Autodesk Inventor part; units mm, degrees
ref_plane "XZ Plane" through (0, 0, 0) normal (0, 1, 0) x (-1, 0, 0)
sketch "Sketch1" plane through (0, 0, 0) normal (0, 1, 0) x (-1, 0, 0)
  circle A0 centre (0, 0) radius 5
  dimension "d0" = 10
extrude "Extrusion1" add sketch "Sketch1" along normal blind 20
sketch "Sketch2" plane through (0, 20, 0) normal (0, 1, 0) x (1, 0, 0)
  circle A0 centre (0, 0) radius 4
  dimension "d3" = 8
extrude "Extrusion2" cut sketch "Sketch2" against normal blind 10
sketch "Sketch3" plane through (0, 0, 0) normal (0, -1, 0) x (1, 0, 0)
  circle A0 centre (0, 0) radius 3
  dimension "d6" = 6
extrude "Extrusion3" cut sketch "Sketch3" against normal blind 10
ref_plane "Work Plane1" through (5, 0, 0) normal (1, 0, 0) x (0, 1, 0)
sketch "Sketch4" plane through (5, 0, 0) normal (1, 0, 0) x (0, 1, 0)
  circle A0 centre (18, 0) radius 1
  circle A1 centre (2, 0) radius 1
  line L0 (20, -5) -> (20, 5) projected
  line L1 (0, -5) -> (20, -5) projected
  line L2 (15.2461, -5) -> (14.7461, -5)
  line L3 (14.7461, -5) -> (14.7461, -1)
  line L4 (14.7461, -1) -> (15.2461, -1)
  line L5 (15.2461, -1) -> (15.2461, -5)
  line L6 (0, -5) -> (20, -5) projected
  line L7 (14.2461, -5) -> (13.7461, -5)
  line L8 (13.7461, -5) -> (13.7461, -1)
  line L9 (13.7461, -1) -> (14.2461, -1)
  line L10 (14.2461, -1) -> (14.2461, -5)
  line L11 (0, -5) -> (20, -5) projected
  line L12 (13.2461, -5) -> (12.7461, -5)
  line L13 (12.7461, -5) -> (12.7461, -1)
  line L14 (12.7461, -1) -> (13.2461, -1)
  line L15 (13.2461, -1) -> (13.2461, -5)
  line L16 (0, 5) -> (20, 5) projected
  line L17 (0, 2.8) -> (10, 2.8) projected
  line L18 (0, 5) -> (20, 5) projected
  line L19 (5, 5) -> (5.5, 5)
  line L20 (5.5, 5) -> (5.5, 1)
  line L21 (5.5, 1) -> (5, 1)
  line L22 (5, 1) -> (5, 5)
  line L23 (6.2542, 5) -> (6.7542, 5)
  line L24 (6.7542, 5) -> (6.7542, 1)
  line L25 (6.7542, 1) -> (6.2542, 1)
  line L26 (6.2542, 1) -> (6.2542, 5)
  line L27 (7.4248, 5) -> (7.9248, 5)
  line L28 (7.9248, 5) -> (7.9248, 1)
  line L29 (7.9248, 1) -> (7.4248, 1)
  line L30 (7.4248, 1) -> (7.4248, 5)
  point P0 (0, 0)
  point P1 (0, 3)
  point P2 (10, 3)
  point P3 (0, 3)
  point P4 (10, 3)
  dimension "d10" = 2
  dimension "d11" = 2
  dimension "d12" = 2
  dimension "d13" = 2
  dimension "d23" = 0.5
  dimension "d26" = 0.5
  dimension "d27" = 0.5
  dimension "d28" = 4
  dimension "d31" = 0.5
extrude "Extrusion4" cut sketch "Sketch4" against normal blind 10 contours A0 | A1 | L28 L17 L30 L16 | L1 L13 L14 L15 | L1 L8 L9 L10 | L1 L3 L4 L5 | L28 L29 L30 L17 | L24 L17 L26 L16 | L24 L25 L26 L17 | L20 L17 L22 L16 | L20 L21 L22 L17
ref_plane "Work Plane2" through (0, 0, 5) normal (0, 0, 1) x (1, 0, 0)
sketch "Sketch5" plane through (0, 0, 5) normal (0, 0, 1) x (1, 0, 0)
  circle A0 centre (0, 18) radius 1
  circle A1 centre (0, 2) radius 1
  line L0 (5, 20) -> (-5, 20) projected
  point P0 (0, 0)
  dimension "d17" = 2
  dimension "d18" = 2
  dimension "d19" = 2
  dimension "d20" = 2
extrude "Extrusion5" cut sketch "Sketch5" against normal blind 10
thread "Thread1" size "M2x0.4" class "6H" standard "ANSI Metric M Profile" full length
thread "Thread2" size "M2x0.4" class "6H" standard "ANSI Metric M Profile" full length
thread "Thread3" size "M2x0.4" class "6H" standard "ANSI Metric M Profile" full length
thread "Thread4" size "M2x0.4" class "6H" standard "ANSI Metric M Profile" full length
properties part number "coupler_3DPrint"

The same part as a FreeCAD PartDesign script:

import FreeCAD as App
import Part
import Sketcher
from FreeCAD import Vector

doc = App.newDocument("Part")
body = doc.addObject("PartDesign::Body", "Body")

# Sketch on XZ plane
sketch1 = doc.addObject("Sketcher::SketchObject", "Sketch")
body.addObject(sketch1)
sketch1.AttachmentSupport = (doc.XZ_Plane, [""])
sketch1.MapMode = "FlatFace"
sketch1.addGeometry(Part.Circle(Vector(0, 0, 0), Vector(0, 0, 1), 5), False)
sketch1.addConstraint(Sketcher.Constraint("Coincident", 0, 3, -1, 1))
sketch1.addConstraint(Sketcher.Constraint("Diameter", 0, 10.0))
pad1 = doc.addObject("PartDesign::Pad", "Pad")
body.addObject(pad1)
pad1.Profile = sketch1
pad1.Length = 20
pad1.Reversed = True

# Sketch on XZ plane
sketch2 = doc.addObject("Sketcher::SketchObject", "Sketch001")
body.addObject(sketch2)
sketch2.AttachmentSupport = (doc.XZ_Plane, [""])
sketch2.MapMode = "FlatFace"
sketch2.AttachmentOffset = App.Placement(Vector(0, 0, -20), App.Rotation())
sketch2.addGeometry(Part.Circle(Vector(0, 0, 0), Vector(0, 0, 1), 4), False)
sketch2.addConstraint(Sketcher.Constraint("Coincident", 0, 3, -1, 1))
sketch2.addConstraint(Sketcher.Constraint("Diameter", 0, 8.0))
pocket1 = doc.addObject("PartDesign::Pocket", "Pocket")
body.addObject(pocket1)
pocket1.Profile = sketch2
pocket1.Length = 10
pocket1.Reversed = True

# Sketch on XZ plane
sketch3 = doc.addObject("Sketcher::SketchObject", "Sketch002")
body.addObject(sketch3)
sketch3.AttachmentSupport = (doc.XZ_Plane, [""])
sketch3.MapMode = "FlatFace"
sketch3.addGeometry(Part.Circle(Vector(0, 0, 0), Vector(0, 0, 1), 3), False)
sketch3.addConstraint(Sketcher.Constraint("Coincident", 0, 3, -1, 1))
sketch3.addConstraint(Sketcher.Constraint("Diameter", 0, 6.0))
pocket2 = doc.addObject("PartDesign::Pocket", "Pocket001")
body.addObject(pocket2)
pocket2.Profile = sketch3
pocket2.Length = 10

# Sketch on YZ plane
sketch4 = doc.addObject("Sketcher::SketchObject", "Sketch003")
body.addObject(sketch4)
sketch4.AttachmentSupport = (doc.YZ_Plane, [""])
sketch4.MapMode = "FlatFace"
sketch4.AttachmentOffset = App.Placement(Vector(0, 0, 5), App.Rotation())
sketch4.addGeometry(Part.Circle(Vector(18, 0, 0), Vector(0, 0, 1), 1), False)
sketch4.addGeometry(Part.Circle(Vector(2, 0, 0), Vector(0, 0, 1), 1), False)
sketch4.addGeometry(Part.LineSegment(Vector(7.9248, 5, 0), Vector(7.4248, 5, 0)), False)
sketch4.addGeometry(Part.LineSegment(Vector(7.4248, 5, 0), Vector(7.4248, 1, 0)), False)
sketch4.addGeometry(Part.LineSegment(Vector(7.4248, 1, 0), Vector(7.9248, 1, 0)), False)
sketch4.addGeometry(Part.LineSegment(Vector(7.9248, 1, 0), Vector(7.9248, 5, 0)), False)
sketch4.addGeometry(Part.LineSegment(Vector(12.7461, -5, 0), Vector(13.2461, -5, 0)), False)
sketch4.addGeometry(Part.LineSegment(Vector(13.2461, -5, 0), Vector(13.2461, -1, 0)), False)
sketch4.addGeometry(Part.LineSegment(Vector(13.2461, -1, 0), Vector(12.7461, -1, 0)), False)
sketch4.addGeometry(Part.LineSegment(Vector(12.7461, -1, 0), Vector(12.7461, -5, 0)), False)
sketch4.addGeometry(Part.LineSegment(Vector(13.7461, -5, 0), Vector(14.2461, -5, 0)), False)
sketch4.addGeometry(Part.LineSegment(Vector(14.2461, -5, 0), Vector(14.2461, -1, 0)), False)
sketch4.addGeometry(Part.LineSegment(Vector(14.2461, -1, 0), Vector(13.7461, -1, 0)), False)
sketch4.addGeometry(Part.LineSegment(Vector(13.7461, -1, 0), Vector(13.7461, -5, 0)), False)
sketch4.addGeometry(Part.LineSegment(Vector(14.7461, -5, 0), Vector(15.2461, -5, 0)), False)
sketch4.addGeometry(Part.LineSegment(Vector(15.2461, -5, 0), Vector(15.2461, -1, 0)), False)
sketch4.addGeometry(Part.LineSegment(Vector(15.2461, -1, 0), Vector(14.7461, -1, 0)), False)
sketch4.addGeometry(Part.LineSegment(Vector(14.7461, -1, 0), Vector(14.7461, -5, 0)), False)
sketch4.addGeometry(Part.LineSegment(Vector(6.7542, 5, 0), Vector(6.2542, 5, 0)), False)
sketch4.addGeometry(Part.LineSegment(Vector(6.2542, 5, 0), Vector(6.2542, 1, 0)), False)
sketch4.addGeometry(Part.LineSegment(Vector(6.2542, 1, 0), Vector(6.7542, 1, 0)), False)
sketch4.addGeometry(Part.LineSegment(Vector(6.7542, 1, 0), Vector(6.7542, 5, 0)), False)
sketch4.addGeometry(Part.LineSegment(Vector(5.5, 5, 0), Vector(5, 5, 0)), False)
sketch4.addGeometry(Part.LineSegment(Vector(5, 5, 0), Vector(5, 1, 0)), False)
sketch4.addGeometry(Part.LineSegment(Vector(5, 1, 0), Vector(5.5, 1, 0)), False)
sketch4.addGeometry(Part.LineSegment(Vector(5.5, 1, 0), Vector(5.5, 5, 0)), False)
sketch4.addConstraint(Sketcher.Constraint("Coincident", 2, 2, 3, 1))
sketch4.addConstraint(Sketcher.Constraint("Coincident", 3, 2, 4, 1))
sketch4.addConstraint(Sketcher.Constraint("Coincident", 4, 2, 5, 1))
sketch4.addConstraint(Sketcher.Constraint("Coincident", 5, 2, 2, 1))
sketch4.addConstraint(Sketcher.Constraint("Coincident", 6, 2, 7, 1))
sketch4.addConstraint(Sketcher.Constraint("Coincident", 7, 2, 8, 1))
sketch4.addConstraint(Sketcher.Constraint("Coincident", 8, 2, 9, 1))
sketch4.addConstraint(Sketcher.Constraint("Coincident", 9, 2, 6, 1))
sketch4.addConstraint(Sketcher.Constraint("Coincident", 10, 2, 11, 1))
sketch4.addConstraint(Sketcher.Constraint("Coincident", 11, 2, 12, 1))
sketch4.addConstraint(Sketcher.Constraint("Coincident", 12, 2, 13, 1))
sketch4.addConstraint(Sketcher.Constraint("Coincident", 13, 2, 10, 1))
sketch4.addConstraint(Sketcher.Constraint("Coincident", 14, 2, 15, 1))
sketch4.addConstraint(Sketcher.Constraint("Coincident", 15, 2, 16, 1))
sketch4.addConstraint(Sketcher.Constraint("Coincident", 16, 2, 17, 1))
sketch4.addConstraint(Sketcher.Constraint("Coincident", 17, 2, 14, 1))
sketch4.addConstraint(Sketcher.Constraint("Coincident", 18, 2, 19, 1))
sketch4.addConstraint(Sketcher.Constraint("Coincident", 19, 2, 20, 1))
sketch4.addConstraint(Sketcher.Constraint("Coincident", 20, 2, 21, 1))
sketch4.addConstraint(Sketcher.Constraint("Coincident", 21, 2, 18, 1))
sketch4.addConstraint(Sketcher.Constraint("Coincident", 22, 2, 23, 1))
sketch4.addConstraint(Sketcher.Constraint("Coincident", 23, 2, 24, 1))
sketch4.addConstraint(Sketcher.Constraint("Coincident", 24, 2, 25, 1))
sketch4.addConstraint(Sketcher.Constraint("Coincident", 25, 2, 22, 1))
sketch4.addConstraint(Sketcher.Constraint("Horizontal", 2))
sketch4.addConstraint(Sketcher.Constraint("Vertical", 3))
sketch4.addConstraint(Sketcher.Constraint("Horizontal", 4))
sketch4.addConstraint(Sketcher.Constraint("Vertical", 5))
sketch4.addConstraint(Sketcher.Constraint("Horizontal", 6))
sketch4.addConstraint(Sketcher.Constraint("Vertical", 7))
sketch4.addConstraint(Sketcher.Constraint("Horizontal", 8))
sketch4.addConstraint(Sketcher.Constraint("Vertical", 9))
sketch4.addConstraint(Sketcher.Constraint("Horizontal", 10))
sketch4.addConstraint(Sketcher.Constraint("Vertical", 11))
sketch4.addConstraint(Sketcher.Constraint("Horizontal", 12))
sketch4.addConstraint(Sketcher.Constraint("Vertical", 13))
sketch4.addConstraint(Sketcher.Constraint("Horizontal", 14))
sketch4.addConstraint(Sketcher.Constraint("Vertical", 15))
sketch4.addConstraint(Sketcher.Constraint("Horizontal", 16))
sketch4.addConstraint(Sketcher.Constraint("Vertical", 17))
sketch4.addConstraint(Sketcher.Constraint("Horizontal", 18))
sketch4.addConstraint(Sketcher.Constraint("Vertical", 19))
sketch4.addConstraint(Sketcher.Constraint("Horizontal", 20))
sketch4.addConstraint(Sketcher.Constraint("Vertical", 21))
sketch4.addConstraint(Sketcher.Constraint("Horizontal", 22))
sketch4.addConstraint(Sketcher.Constraint("Vertical", 23))
sketch4.addConstraint(Sketcher.Constraint("Horizontal", 24))
sketch4.addConstraint(Sketcher.Constraint("Vertical", 25))
sketch4.addConstraint(Sketcher.Constraint("Equal", 0, 1))
sketch4.addConstraint(Sketcher.Constraint("PointOnObject", 0, 3, -1))
sketch4.addConstraint(Sketcher.Constraint("PointOnObject", 1, 3, -1))
sketch4.addConstraint(Sketcher.Constraint("Horizontal", 9, 2, 10, 2))
sketch4.addConstraint(Sketcher.Constraint("Horizontal", 8, 2, 11, 2))
sketch4.addConstraint(Sketcher.Constraint("Horizontal", 13, 2, 14, 2))
sketch4.addConstraint(Sketcher.Constraint("Horizontal", 12, 2, 15, 2))
sketch4.addConstraint(Sketcher.Constraint("Horizontal", 5, 2, 18, 2))
sketch4.addConstraint(Sketcher.Constraint("Horizontal", 4, 2, 19, 2))
sketch4.addConstraint(Sketcher.Constraint("Horizontal", 21, 2, 22, 2))
sketch4.addConstraint(Sketcher.Constraint("Horizontal", 20, 2, 23, 2))
sketch4.addConstraint(Sketcher.Constraint("Equal", 4, 6))
sketch4.addConstraint(Sketcher.Constraint("Equal", 8, 10))
sketch4.addConstraint(Sketcher.Constraint("Equal", 12, 14))
sketch4.addConstraint(Sketcher.Constraint("Equal", 16, 18))
sketch4.addConstraint(Sketcher.Constraint("Equal", 20, 22))
sketch4.addConstraint(Sketcher.Constraint("Equal", 5, 7))
sketch4.addConstraint(Sketcher.Constraint("Diameter", 0, 2.0))
sketch4.addConstraint(Sketcher.Constraint("DistanceY", 3, 2, 3, 1, 4.0))
sketch4.addConstraint(Sketcher.Constraint("DistanceX", 2, 2, 2, 1, 0.5))
sketch4.addConstraint(Sketcher.Constraint("DistanceX", -1, 1, 1, 3, 2.0))
sketch4.addConstraint(Sketcher.Constraint("DistanceY", 7, 2, 4, 2, 2.0))
sketch4.addConstraint(Sketcher.Constraint("DistanceX", 6, 2, 14, 2, 2.0))
sketch4.addConstraint(Sketcher.Constraint("DistanceX", 7, 2, 12, 2, 0.5))
sketch4.addConstraint(Sketcher.Constraint("DistanceX", -1, 1, 0, 3, 18.0))
sketch4.addConstraint(Sketcher.Constraint("DistanceY", -1, 1, 2, 2, 5.0))
sketch4.addConstraint(Sketcher.Constraint("DistanceX", -1, 1, 22, 2, 5.0))
sketch4.addConstraint(Sketcher.Constraint("DistanceX", -1, 1, 6, 2, 13.246))
sketch4.addConstraint(Sketcher.Constraint("DistanceX", -1, 1, 2, 2, 7.4248))
sketch4.addConstraint(Sketcher.Constraint("DistanceX", -1, 1, 18, 2, 6.2542))
pocket3 = doc.addObject("PartDesign::Pocket", "Pocket002")
body.addObject(pocket3)
pocket3.Profile = sketch4
pocket3.Length = 10

# Sketch on XY plane
sketch5 = doc.addObject("Sketcher::SketchObject", "Sketch004")
body.addObject(sketch5)
sketch5.AttachmentSupport = (doc.XY_Plane, [""])
sketch5.MapMode = "FlatFace"
sketch5.AttachmentOffset = App.Placement(Vector(0, 0, 5), App.Rotation())
sketch5.addGeometry(Part.Circle(Vector(0, 18, 0), Vector(0, 0, 1), 1), False)
sketch5.addGeometry(Part.Circle(Vector(0, 2, 0), Vector(0, 0, 1), 1), False)
sketch5.addConstraint(Sketcher.Constraint("Equal", 0, 1))
sketch5.addConstraint(Sketcher.Constraint("PointOnObject", 0, 3, -2))
sketch5.addConstraint(Sketcher.Constraint("PointOnObject", 1, 3, -2))
sketch5.addConstraint(Sketcher.Constraint("Diameter", 0, 2.0))
sketch5.addConstraint(Sketcher.Constraint("DistanceY", -1, 1, 1, 3, 2.0))
sketch5.addConstraint(Sketcher.Constraint("DistanceY", -1, 1, 0, 3, 18.0))
pocket4 = doc.addObject("PartDesign::Pocket", "Pocket003")
body.addObject(pocket4)
pocket4.Profile = sketch5
pocket4.Length = 10

doc.recompute()
